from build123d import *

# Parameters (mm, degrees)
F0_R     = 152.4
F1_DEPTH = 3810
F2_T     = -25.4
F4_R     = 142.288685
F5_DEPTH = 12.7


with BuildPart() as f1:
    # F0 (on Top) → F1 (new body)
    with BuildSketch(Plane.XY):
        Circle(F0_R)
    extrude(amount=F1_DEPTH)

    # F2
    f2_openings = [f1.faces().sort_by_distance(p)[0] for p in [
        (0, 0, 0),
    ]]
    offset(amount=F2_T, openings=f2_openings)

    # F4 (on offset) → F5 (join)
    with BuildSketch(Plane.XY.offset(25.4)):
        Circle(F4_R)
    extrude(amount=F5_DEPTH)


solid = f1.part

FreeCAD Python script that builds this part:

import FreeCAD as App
import Part
import Sketcher
Q = App.Units.Quantity


def faces_at(feature, points):
    """Names of the faces that lie closest to the given points."""
    faces = feature.Shape.Faces
    near = lambda p: min(range(len(faces)), key=lambda i: faces[i].distToShape(Part.Vertex(*p))[0])
    return sorted({f"Face{near(p) + 1}" for p in points})

doc = App.newDocument("Part")
body = doc.addObject("PartDesign::Body", "Body")

# Sketch on XY plane
sketch1 = body.newObject("Sketcher::SketchObject", "Sketch")
sketch1.AttachmentSupport = (doc.getObject("XY_Plane"), [""])
sketch1.MapMode = "FlatFace"
sketch1.addGeometry(Part.Circle(App.Vector(0, 0, 0), App.Vector(0, 0, 1), 152), False)
sketch1.addConstraint(Sketcher.Constraint("Coincident", 0, 3, -1, 1))
sketch1.addConstraint(Sketcher.Constraint("Diameter", 0, Q("12 in")))
pad1 = body.newObject("PartDesign::Pad", "Pad")
pad1.Profile = sketch1
pad1.Length = Q("150 in")
doc.recompute()

thickness = body.newObject("PartDesign::Thickness", "Thickness")
thickness.Base = (pad1, faces_at(pad1, [(0, 0, 0)]))
thickness.Value = Q("1 in")
thickness.Reversed = True
thickness.Join = "Arc"

# Sketch on XY plane
sketch2 = body.newObject("Sketcher::SketchObject", "Sketch001")
sketch2.AttachmentSupport = (doc.getObject("XY_Plane"), [""])
sketch2.MapMode = "FlatFace"
sketch2.AttachmentOffset = App.Placement(App.Vector(0, 0, 1 * 25.4), App.Rotation())
sketch2.addGeometry(Part.Circle(App.Vector(0, 0, 0), App.Vector(0, 0, 1), 142), False)
sketch2.addConstraint(Sketcher.Constraint("Coincident", 0, 3, -1, 1))
sketch2.addConstraint(Sketcher.Constraint("Diameter", 0, 284.57737))
pad2 = body.newObject("PartDesign::Pad", "Pad001")
pad2.Profile = sketch2
pad2.Length = Q("0.5 in")

doc.recompute()
